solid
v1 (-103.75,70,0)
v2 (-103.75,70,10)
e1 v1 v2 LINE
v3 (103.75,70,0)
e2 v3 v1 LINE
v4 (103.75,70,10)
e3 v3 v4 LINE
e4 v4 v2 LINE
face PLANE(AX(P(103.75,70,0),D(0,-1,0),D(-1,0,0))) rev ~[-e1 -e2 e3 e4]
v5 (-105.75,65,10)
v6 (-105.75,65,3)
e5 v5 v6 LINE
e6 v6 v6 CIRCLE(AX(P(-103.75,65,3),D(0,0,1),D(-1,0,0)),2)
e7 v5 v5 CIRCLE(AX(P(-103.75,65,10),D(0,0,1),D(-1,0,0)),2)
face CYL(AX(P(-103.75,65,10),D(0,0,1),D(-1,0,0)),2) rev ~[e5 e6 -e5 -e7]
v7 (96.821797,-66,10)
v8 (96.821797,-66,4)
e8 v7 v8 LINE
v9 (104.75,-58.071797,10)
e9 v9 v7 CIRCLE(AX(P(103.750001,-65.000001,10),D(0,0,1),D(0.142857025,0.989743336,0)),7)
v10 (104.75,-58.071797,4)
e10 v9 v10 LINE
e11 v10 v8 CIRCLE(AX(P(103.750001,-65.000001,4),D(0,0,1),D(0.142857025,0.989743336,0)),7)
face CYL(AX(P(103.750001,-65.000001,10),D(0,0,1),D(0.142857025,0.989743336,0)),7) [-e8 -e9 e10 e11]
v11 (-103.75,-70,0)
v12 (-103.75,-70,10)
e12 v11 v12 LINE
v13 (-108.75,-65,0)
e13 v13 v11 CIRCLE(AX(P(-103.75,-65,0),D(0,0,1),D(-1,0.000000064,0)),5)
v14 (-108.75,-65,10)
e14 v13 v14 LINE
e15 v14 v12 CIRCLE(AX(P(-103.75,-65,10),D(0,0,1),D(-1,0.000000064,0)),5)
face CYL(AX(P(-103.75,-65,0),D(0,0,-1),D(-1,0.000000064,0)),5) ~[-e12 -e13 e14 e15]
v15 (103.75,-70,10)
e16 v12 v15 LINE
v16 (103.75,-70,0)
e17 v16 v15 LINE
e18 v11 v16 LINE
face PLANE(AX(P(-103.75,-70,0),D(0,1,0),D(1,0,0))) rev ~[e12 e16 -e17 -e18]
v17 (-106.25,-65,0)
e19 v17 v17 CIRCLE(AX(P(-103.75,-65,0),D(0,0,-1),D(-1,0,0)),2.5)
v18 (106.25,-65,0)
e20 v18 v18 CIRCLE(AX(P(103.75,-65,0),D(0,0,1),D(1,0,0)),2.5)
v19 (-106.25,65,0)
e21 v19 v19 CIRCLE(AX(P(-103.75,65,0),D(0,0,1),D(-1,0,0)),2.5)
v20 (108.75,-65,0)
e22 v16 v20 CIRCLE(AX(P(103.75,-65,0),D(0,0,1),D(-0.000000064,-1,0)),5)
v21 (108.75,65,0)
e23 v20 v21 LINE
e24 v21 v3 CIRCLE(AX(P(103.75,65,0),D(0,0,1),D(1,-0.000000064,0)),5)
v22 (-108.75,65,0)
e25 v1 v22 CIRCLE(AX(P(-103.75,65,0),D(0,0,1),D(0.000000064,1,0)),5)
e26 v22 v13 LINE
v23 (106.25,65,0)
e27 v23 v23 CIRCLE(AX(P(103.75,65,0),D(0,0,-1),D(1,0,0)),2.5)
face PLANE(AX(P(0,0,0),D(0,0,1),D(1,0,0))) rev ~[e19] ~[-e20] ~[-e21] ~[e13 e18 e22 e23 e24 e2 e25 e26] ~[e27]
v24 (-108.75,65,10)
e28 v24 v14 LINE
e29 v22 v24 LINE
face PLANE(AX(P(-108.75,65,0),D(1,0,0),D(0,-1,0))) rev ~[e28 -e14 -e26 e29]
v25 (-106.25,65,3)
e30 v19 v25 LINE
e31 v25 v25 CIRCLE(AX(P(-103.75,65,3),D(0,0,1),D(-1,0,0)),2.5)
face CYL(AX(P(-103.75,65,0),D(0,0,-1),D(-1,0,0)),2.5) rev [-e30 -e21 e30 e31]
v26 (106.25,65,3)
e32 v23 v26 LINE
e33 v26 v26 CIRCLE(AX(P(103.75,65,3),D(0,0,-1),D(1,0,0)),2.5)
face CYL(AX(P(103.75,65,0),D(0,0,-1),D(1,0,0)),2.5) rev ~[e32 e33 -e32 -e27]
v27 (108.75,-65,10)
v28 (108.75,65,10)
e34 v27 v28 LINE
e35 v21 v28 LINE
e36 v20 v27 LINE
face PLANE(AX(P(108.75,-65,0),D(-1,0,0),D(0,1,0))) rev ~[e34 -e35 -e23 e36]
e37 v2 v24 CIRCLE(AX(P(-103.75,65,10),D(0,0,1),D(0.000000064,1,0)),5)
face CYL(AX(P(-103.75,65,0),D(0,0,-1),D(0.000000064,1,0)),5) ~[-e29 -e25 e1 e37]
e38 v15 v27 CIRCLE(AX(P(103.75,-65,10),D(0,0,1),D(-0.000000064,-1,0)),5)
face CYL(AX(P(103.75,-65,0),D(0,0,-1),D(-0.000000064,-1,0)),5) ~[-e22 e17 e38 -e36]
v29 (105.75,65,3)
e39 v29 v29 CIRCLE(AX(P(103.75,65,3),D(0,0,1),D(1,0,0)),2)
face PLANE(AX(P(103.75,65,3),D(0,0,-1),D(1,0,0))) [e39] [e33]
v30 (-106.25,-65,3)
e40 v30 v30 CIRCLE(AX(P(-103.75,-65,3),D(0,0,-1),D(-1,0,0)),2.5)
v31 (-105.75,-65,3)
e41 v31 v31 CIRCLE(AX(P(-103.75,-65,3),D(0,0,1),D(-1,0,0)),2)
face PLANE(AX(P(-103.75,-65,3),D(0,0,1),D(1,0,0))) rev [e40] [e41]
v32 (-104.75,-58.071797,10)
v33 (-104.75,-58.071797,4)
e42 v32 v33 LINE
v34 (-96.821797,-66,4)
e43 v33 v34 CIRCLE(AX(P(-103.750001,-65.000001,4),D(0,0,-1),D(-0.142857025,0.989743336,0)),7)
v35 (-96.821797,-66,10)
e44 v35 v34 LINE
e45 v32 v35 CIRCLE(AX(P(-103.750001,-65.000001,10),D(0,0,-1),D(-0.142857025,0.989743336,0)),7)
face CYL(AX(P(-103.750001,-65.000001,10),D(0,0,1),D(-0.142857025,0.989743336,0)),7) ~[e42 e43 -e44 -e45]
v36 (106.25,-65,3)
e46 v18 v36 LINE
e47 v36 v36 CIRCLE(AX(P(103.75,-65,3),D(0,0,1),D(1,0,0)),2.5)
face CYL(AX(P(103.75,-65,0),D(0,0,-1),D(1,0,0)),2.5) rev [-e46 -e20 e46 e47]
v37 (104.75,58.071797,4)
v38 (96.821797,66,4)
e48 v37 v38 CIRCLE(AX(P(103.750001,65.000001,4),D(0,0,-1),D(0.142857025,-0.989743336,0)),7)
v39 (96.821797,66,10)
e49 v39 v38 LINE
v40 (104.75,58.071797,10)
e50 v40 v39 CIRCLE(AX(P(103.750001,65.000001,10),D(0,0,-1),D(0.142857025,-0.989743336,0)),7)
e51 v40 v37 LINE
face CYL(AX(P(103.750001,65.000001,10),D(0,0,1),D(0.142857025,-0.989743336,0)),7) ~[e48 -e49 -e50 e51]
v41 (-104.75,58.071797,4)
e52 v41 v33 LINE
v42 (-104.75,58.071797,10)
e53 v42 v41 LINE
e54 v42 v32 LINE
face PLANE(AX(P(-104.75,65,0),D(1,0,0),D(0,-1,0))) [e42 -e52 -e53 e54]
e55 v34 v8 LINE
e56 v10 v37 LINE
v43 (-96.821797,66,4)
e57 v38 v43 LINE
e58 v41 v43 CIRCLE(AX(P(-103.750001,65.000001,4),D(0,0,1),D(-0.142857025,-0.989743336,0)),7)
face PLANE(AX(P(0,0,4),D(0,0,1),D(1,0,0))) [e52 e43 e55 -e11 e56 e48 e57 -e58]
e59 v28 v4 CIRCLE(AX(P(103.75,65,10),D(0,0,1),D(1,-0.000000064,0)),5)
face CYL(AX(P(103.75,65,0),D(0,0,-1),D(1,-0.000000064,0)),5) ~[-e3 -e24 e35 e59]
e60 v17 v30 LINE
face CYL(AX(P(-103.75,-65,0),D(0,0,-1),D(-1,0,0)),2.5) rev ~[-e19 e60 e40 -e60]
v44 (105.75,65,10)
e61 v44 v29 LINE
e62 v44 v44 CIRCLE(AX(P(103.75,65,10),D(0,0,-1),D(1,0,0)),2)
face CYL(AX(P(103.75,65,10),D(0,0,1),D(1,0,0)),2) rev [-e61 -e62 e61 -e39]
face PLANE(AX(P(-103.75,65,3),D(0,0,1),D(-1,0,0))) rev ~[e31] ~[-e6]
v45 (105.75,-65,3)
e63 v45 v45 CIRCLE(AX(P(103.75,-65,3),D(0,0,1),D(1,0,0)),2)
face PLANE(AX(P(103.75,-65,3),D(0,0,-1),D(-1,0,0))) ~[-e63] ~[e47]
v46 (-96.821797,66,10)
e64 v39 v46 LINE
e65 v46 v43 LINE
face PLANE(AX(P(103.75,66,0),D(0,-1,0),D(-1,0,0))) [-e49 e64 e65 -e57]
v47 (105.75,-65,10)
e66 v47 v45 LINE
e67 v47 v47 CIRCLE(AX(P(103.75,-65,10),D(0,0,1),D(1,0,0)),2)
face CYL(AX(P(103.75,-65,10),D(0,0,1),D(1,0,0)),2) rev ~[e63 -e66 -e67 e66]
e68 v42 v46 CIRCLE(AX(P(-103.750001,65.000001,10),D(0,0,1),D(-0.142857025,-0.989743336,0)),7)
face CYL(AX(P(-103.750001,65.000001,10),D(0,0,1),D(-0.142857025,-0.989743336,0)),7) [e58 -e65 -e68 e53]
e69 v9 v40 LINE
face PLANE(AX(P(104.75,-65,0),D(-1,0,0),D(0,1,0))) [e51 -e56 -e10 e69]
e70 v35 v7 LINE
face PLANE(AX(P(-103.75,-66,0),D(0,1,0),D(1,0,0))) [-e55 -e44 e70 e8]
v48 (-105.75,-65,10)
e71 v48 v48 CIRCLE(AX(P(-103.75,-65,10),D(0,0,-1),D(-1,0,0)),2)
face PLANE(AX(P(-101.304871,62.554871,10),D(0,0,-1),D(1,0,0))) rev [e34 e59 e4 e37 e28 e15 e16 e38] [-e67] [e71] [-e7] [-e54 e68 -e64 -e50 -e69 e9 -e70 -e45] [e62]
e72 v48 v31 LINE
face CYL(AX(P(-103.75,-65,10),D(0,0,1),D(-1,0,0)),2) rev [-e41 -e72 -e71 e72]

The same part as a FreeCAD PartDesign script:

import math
import FreeCAD as App
import Part
import Sketcher
from FreeCAD import Vector


def faces_at(feature, points):
    """Names of the faces that lie closest to the given points."""
    faces = feature.Shape.Faces
    near = lambda p: min(range(len(faces)), key=lambda i: faces[i].distToShape(Part.Vertex(*p))[0])
    return sorted({f"Face{near(p) + 1}" for p in points})

doc = App.newDocument("Part")
body = doc.addObject("PartDesign::Body", "Body")

sketch1 = body.newObject("Sketcher::SketchObject", "Sketch")
sketch1.AttachmentSupport = (doc.getObject("XY_Plane"), [""])
sketch1.MapMode = "FlatFace"
sketch1.addGeometry([
    Part.LineSegment(Vector(-103.8, -70, 0), Vector(103.8, -70, 0)),
    Part.ArcOfCircle(Part.Circle(Vector(103.8, -65, 0), Vector(0, 0, 1), 5), math.radians(-90), math.radians(0)),
    Part.LineSegment(Vector(108.8, -65, 0), Vector(108.8, 65, 0)),
    Part.ArcOfCircle(Part.Circle(Vector(103.8, 65, 0), Vector(0, 0, 1), 5), math.radians(0), math.radians(90)),
    Part.LineSegment(Vector(103.8, 70, 0), Vector(-103.8, 70, 0)),
    Part.ArcOfCircle(Part.Circle(Vector(-103.8, 65, 0), Vector(0, 0, 1), 5), math.radians(90), math.radians(180)),
    Part.LineSegment(Vector(-108.8, 65, 0), Vector(-108.8, -65, 0)),
    Part.ArcOfCircle(Part.Circle(Vector(-103.8, -65, 0), Vector(0, 0, 1), 5), math.radians(180), math.radians(270)),
], False)
sketch1.addConstraint([
    Sketcher.Constraint("Tangent", 0, 2, 1, 1),
    Sketcher.Constraint("Tangent", 1, 2, 2, 1),
    Sketcher.Constraint("Tangent", 2, 2, 3, 1),
    Sketcher.Constraint("Tangent", 3, 2, 4, 1),
    Sketcher.Constraint("Tangent", 4, 2, 5, 1),
    Sketcher.Constraint("Tangent", 5, 2, 6, 1),
    Sketcher.Constraint("Tangent", 6, 2, 7, 1),
    Sketcher.Constraint("Tangent", 7, 2, 0, 1),
    Sketcher.Constraint("Horizontal", 0),
    Sketcher.Constraint("Vertical", 2),
    Sketcher.Constraint("Horizontal", 4),
    Sketcher.Constraint("Vertical", 6),
    Sketcher.Constraint("Equal", 1, 3),
    Sketcher.Constraint("Equal", 3, 5),
    Sketcher.Constraint("Equal", 5, 7),
    Sketcher.Constraint("Symmetric", 1, 3, 5, 3, -1, 1),
    Sketcher.Constraint("Radius", 1, 5.0),
    Sketcher.Constraint("DistanceY", 2, 1, 2, 2, 130.0),
    Sketcher.Constraint("DistanceX", 0, 1, 0, 2, 207.5),
])
pad1 = body.newObject("PartDesign::Pad", "Pad")
pad1.Profile = sketch1
pad1.Length = 10
doc.recompute()

thickness = body.newObject("PartDesign::Thickness", "Thickness")
thickness.Base = (pad1, faces_at(pad1, [(0, 0, 10)]))
thickness.Value = 4
thickness.Reversed = True
thickness.Join = "Arc"

sketch2 = body.newObject("Sketcher::SketchObject", "Sketch001")
sketch2.AttachmentSupport = (doc.getObject("XY_Plane"), [""])
sketch2.MapMode = "FlatFace"
sketch2.AttachmentOffset = App.Placement(Vector(0, 0, 10), App.Rotation())
sketch2.addGeometry([
    Part.ArcOfCircle(Part.Circle(Vector(103.8, -65, 0), Vector(0, 0, 1), 7), math.radians(82), math.radians(188)),
    Part.LineSegment(Vector(96.8, -66, 0), Vector(103.8, -66, 0)),
    Part.ArcOfCircle(Part.Circle(Vector(103.8, -65, 0), Vector(0, 0, 1), 1), math.radians(-90), math.radians(0)),
    Part.LineSegment(Vector(104.8, -65, 0), Vector(104.8, -58.1, 0)),
], False)
sketch2.addConstraint([
    Sketcher.Constraint("Coincident", 0, 2, 1, 1),
    Sketcher.Constraint("Tangent", 1, 2, 2, 1),
    Sketcher.Constraint("Tangent", 2, 2, 3, 1),
    Sketcher.Constraint("Coincident", 3, 2, 0, 1),
    Sketcher.Constraint("Horizontal", 1),
    Sketcher.Constraint("Vertical", 3),
    Sketcher.Constraint("Coincident", 2, 3, 0, 3),
    Sketcher.Constraint("Radius", 0, 7.0),
    Sketcher.Constraint("Radius", 2, 0.999999),
    Sketcher.Constraint("DistanceY", 0, 3, -1, 1, 65.000001),
    Sketcher.Constraint("DistanceX", -1, 1, 0, 3, 103.750001),
])
pad2 = body.newObject("PartDesign::Pad", "Pad001")
pad2.Profile = sketch2
pad2.Length = 6
pad2.Reversed = True

sketch3 = body.newObject("Sketcher::SketchObject", "Sketch002")
sketch3.AttachmentSupport = (doc.getObject("XY_Plane"), [""])
sketch3.MapMode = "FlatFace"
sketch3.AttachmentOffset = App.Placement(Vector(0, 0, 10), App.Rotation())
sketch3.addGeometry([
    Part.ArcOfCircle(Part.Circle(Vector(-103.8, -65, 0), Vector(0, 0, 1), 7), math.radians(-8), math.radians(98)),
    Part.LineSegment(Vector(-96.8, -66, 0), Vector(-103.8, -66, 0)),
    Part.ArcOfCircle(Part.Circle(Vector(-103.8, -65, 0), Vector(0, 0, 1), 1), math.radians(180), math.radians(270)),
    Part.LineSegment(Vector(-104.8, -65, 0), Vector(-104.8, -58.1, 0)),
], False)
sketch3.addConstraint([
    Sketcher.Constraint("Coincident", 0, 1, 1, 1),
    Sketcher.Constraint("Tangent", 1, 2, 2, 2),
    Sketcher.Constraint("Tangent", 2, 1, 3, 1),
    Sketcher.Constraint("Coincident", 3, 2, 0, 2),
    Sketcher.Constraint("Horizontal", 1),
    Sketcher.Constraint("Vertical", 3),
    Sketcher.Constraint("Coincident", 2, 3, 0, 3),
    Sketcher.Constraint("Radius", 0, 7.0),
    Sketcher.Constraint("Radius", 2, 0.999999),
    Sketcher.Constraint("DistanceY", 0, 3, -1, 1, 65.000001),
    Sketcher.Constraint("DistanceX", 0, 3, -1, 1, 103.750001),
])
pad3 = body.newObject("PartDesign::Pad", "Pad002")
pad3.Profile = sketch3
pad3.Length = 6
pad3.Reversed = True
doc.recompute()

mirrored = body.newObject("PartDesign::Mirrored", "Mirrored")
mirrored.Originals = [pad2, pad3]
mirrored.MirrorPlane = (doc.getObject("XZ_Plane"), [""])
body.Tip = mirrored

sketch4 = body.newObject("Sketcher::SketchObject", "Sketch003")
sketch4.AttachmentSupport = (doc.getObject("XY_Plane"), [""])
sketch4.MapMode = "FlatFace"
sketch4.AttachmentOffset = App.Placement(Vector(0, 0, 10), App.Rotation())
sketch4.addGeometry(Part.Circle(Vector(103.8, -65, 0), Vector(0, 0, 1), 2), False)
sketch4.addConstraint([
    Sketcher.Constraint("Diameter", 0, 4.0),
    Sketcher.Constraint("DistanceY", 0, 3, -1, 1, 65.0),
    Sketcher.Constraint("DistanceX", -1, 1, 0, 3, 103.75),
])
pocket1 = body.newObject("PartDesign::Pocket", "Pocket")
pocket1.Profile = sketch4
pocket1.Type = "ThroughAll"

sketch5 = body.newObject("Sketcher::SketchObject", "Sketch004")
sketch5.AttachmentSupport = (doc.getObject("XY_Plane"), [""])
sketch5.MapMode = "FlatFace"
sketch5.AttachmentOffset = App.Placement(Vector(0, 0, 10), App.Rotation())
sketch5.addGeometry(Part.Circle(Vector(-103.8, -65, 0), Vector(0, 0, 1), 2), False)
sketch5.addConstraint([
    Sketcher.Constraint("Diameter", 0, 4.0),
    Sketcher.Constraint("DistanceY", 0, 3, -1, 1, 65.0),
    Sketcher.Constraint("DistanceX", 0, 3, -1, 1, 103.75),
])
pocket2 = body.newObject("PartDesign::Pocket", "Pocket001")
pocket2.Profile = sketch5
pocket2.Type = "ThroughAll"
doc.recompute()

mirrored2 = body.newObject("PartDesign::Mirrored", "Mirrored001")
mirrored2.Originals = [pocket1, pocket2]
mirrored2.MirrorPlane = (doc.getObject("XZ_Plane"), [""])
body.Tip = mirrored2

sketch6 = body.newObject("Sketcher::SketchObject", "Sketch005")
sketch6.AttachmentSupport = (doc.getObject("XY_Plane"), [""])
sketch6.MapMode = "FlatFace"
sketch6.addGeometry(Part.Circle(Vector(103.8, 65, 0), Vector(0, 0, 1), 2.5), False)
sketch6.addConstraint([
    Sketcher.Constraint("Diameter", 0, 5.0),
    Sketcher.Constraint("DistanceY", -1, 1, 0, 3, 65.0),
    Sketcher.Constraint("DistanceX", -1, 1, 0, 3, 103.75),
])
pocket3 = body.newObject("PartDesign::Pocket", "Pocket002")
pocket3.Profile = sketch6
pocket3.Length = 3
pocket3.Reversed = True

sketch7 = body.newObject("Sketcher::SketchObject", "Sketch006")
sketch7.AttachmentSupport = (doc.getObject("XY_Plane"), [""])
sketch7.MapMode = "FlatFace"
sketch7.addGeometry(Part.Circle(Vector(-103.8, 65, 0), Vector(0, 0, 1), 2.5), False)
sketch7.addConstraint([
    Sketcher.Constraint("Diameter", 0, 5.0),
    Sketcher.Constraint("DistanceY", -1, 1, 0, 3, 65.0),
    Sketcher.Constraint("DistanceX", 0, 3, -1, 1, 103.75),
])
pocket4 = body.newObject("PartDesign::Pocket", "Pocket003")
pocket4.Profile = sketch7
pocket4.Length = 3
pocket4.Reversed = True
doc.recompute()

mirrored3 = body.newObject("PartDesign::Mirrored", "Mirrored002")
mirrored3.Originals = [pocket3, pocket4]
mirrored3.MirrorPlane = (doc.getObject("XZ_Plane"), [""])
body.Tip = mirrored3

doc.recompute()
